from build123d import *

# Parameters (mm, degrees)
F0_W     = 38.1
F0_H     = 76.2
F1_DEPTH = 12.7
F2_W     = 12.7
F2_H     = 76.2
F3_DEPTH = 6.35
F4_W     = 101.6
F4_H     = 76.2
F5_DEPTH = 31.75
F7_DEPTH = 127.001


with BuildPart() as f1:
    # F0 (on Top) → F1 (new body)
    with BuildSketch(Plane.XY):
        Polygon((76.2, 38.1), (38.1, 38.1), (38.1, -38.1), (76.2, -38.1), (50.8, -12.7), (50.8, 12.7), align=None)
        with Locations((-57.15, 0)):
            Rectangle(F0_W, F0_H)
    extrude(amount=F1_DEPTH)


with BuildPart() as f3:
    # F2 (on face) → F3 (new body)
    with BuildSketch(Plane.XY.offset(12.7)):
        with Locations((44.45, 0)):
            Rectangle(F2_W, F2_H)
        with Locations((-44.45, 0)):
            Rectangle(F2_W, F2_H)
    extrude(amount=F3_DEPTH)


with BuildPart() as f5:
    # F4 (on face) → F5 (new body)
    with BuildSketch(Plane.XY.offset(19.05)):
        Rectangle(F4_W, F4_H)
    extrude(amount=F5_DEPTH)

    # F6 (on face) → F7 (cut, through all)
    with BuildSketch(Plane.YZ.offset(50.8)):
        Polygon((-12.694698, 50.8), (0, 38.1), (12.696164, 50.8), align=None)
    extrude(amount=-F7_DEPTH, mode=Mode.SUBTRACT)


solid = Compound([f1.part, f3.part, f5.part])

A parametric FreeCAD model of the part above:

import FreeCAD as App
import Part
import Sketcher
Q = App.Units.Quantity

doc = App.newDocument("Part")
params = doc.addObject("Spreadsheet::Sheet", "Params")
for row, (alias, value) in enumerate([
    ("sketch1_height", "3 in"),
    ("sketch1_height2", "1 in"),
    ("sketch1_width", "1.5 in"),
    ("pad1_length", "0.5 in"),
    ("sketch2_height", "3 in"),
    ("sketch2_width", "0.5 in"),
    ("pad2_length", "0.25 in"),
    ("sketch3_width", "4 in"),
    ("sketch3_height", "3 in"),
    ("pad3_length", "1.25 in"),
    ("sketch4_length", "0.707 in"),
], start=1):
    params.set(f"A{row}", alias)
    params.set(f"B{row}", "=" + value)
    params.setAlias(f"B{row}", alias)

body = doc.addObject("PartDesign::Body", "Body")
body.AllowCompound = True

# Sketch on XY plane
sketch1 = body.newObject("Sketcher::SketchObject", "Sketch")
sketch1.AttachmentSupport = (doc.getObject("XY_Plane"), [""])
sketch1.MapMode = "FlatFace"
sketch1.addGeometry(Part.LineSegment(App.Vector(76.2, 38.1, 0), App.Vector(38.1, 38.1, 0)), False)
sketch1.addGeometry(Part.LineSegment(App.Vector(38.1, 38.1, 0), App.Vector(38.1, -38.1, 0)), False)
sketch1.addGeometry(Part.LineSegment(App.Vector(38.1, -38.1, 0), App.Vector(76.2, -38.1, 0)), False)
sketch1.addGeometry(Part.LineSegment(App.Vector(76.2, -38.1, 0), App.Vector(50.8, -12.7, 0)), False)
sketch1.addGeometry(Part.LineSegment(App.Vector(50.8, -12.7, 0), App.Vector(50.8, 12.7, 0)), False)
sketch1.addGeometry(Part.LineSegment(App.Vector(50.8, 12.7, 0), App.Vector(76.2, 38.1, 0)), False)
sketch1.addGeometry(Part.LineSegment(App.Vector(-76.2, 38.1, 0), App.Vector(-76.2, -38.1, 0)), False)
sketch1.addGeometry(Part.LineSegment(App.Vector(-76.2, -38.1, 0), App.Vector(-38.1, -38.1, 0)), False)
sketch1.addGeometry(Part.LineSegment(App.Vector(-38.1, -38.1, 0), App.Vector(-38.1, 38.1, 0)), False)
sketch1.addGeometry(Part.LineSegment(App.Vector(-38.1, 38.1, 0), App.Vector(-76.2, 38.1, 0)), False)
sketch1.addConstraint(Sketcher.Constraint("Coincident", 0, 2, 1, 1))
sketch1.addConstraint(Sketcher.Constraint("Coincident", 1, 2, 2, 1))
sketch1.addConstraint(Sketcher.Constraint("Coincident", 2, 2, 3, 1))
sketch1.addConstraint(Sketcher.Constraint("Coincident", 3, 2, 4, 1))
sketch1.addConstraint(Sketcher.Constraint("Coincident", 4, 2, 5, 1))
sketch1.addConstraint(Sketcher.Constraint("Coincident", 5, 2, 0, 1))
sketch1.addConstraint(Sketcher.Constraint("Coincident", 6, 2, 7, 1))
sketch1.addConstraint(Sketcher.Constraint("Coincident", 7, 2, 8, 1))
sketch1.addConstraint(Sketcher.Constraint("Coincident", 8, 2, 9, 1))
sketch1.addConstraint(Sketcher.Constraint("Coincident", 9, 2, 6, 1))
sketch1.addConstraint(Sketcher.Constraint("Horizontal", 0))
sketch1.addConstraint(Sketcher.Constraint("Vertical", 1))
sketch1.addConstraint(Sketcher.Constraint("Horizontal", 2))
sketch1.addConstraint(Sketcher.Constraint("Vertical", 4))
sketch1.addConstraint(Sketcher.Constraint("Vertical", 6))
sketch1.addConstraint(Sketcher.Constraint("Horizontal", 7))
sketch1.addConstraint(Sketcher.Constraint("Vertical", 8))
sketch1.addConstraint(Sketcher.Constraint("Horizontal", 9))
sketch1.addConstraint(Sketcher.Constraint("Symmetric", 5, 2, 6, 2, -1, 1))
sketch1.addConstraint(Sketcher.Constraint("Symmetric", 1, 2, 8, 2, -1, 1))
sketch1.addConstraint(Sketcher.Constraint("Symmetric", 2, 2, 6, 2, -2))
sketch1.addConstraint(Sketcher.Constraint("Perpendicular", 3, 5))
sketch1.addConstraint(Sketcher.Constraint("Equal", 3, 5))
sketch1.addConstraint(Sketcher.Constraint("DistanceY", 1, 2, 1, 1, Q("3 in")))
sketch1.addConstraint(Sketcher.Constraint("DistanceY", 4, 1, 4, 2, Q("1 in")))
sketch1.addConstraint(Sketcher.Constraint("DistanceX", 0, 2, 0, 1, Q("1.5 in")))
sketch1.addConstraint(Sketcher.Constraint("DistanceX", -1, 1, 2, 2, Q("3 in")))
sketch1.setExpression("Constraints[23]", "Params.sketch1_height")
sketch1.setExpression("Constraints[24]", "Params.sketch1_height2")
sketch1.setExpression("Constraints[25]", "Params.sketch1_width")
pad1 = body.newObject("PartDesign::Pad", "Pad")
pad1.Profile = sketch1
pad1.setExpression("Length", "Params.pad1_length")
body2 = doc.addObject("PartDesign::Body", "Body001")
body2.AllowCompound = True

# Sketch on XY plane
sketch2 = body2.newObject("Sketcher::SketchObject", "Sketch001")
sketch2.AttachmentSupport = (doc.getObject("XY_Plane001"), [""])
sketch2.MapMode = "FlatFace"
sketch2.AttachmentOffset = App.Placement(App.Vector(0, 0, 0.5 * 25.4), App.Rotation())
sketch2.addGeometry(Part.LineSegment(App.Vector(38.1, 38.1, 0), App.Vector(38.1, -38.1, 0)), False)
sketch2.addGeometry(Part.LineSegment(App.Vector(38.1, -38.1, 0), App.Vector(50.8, -38.1, 0)), False)
sketch2.addGeometry(Part.LineSegment(App.Vector(50.8, -38.1, 0), App.Vector(50.8, 38.1, 0)), False)
sketch2.addGeometry(Part.LineSegment(App.Vector(50.8, 38.1, 0), App.Vector(38.1, 38.1, 0)), False)
sketch2.addGeometry(Part.LineSegment(App.Vector(-50.8, 38.1, 0), App.Vector(-50.8, -38.1, 0)), False)
sketch2.addGeometry(Part.LineSegment(App.Vector(-50.8, -38.1, 0), App.Vector(-38.1, -38.1, 0)), False)
sketch2.addGeometry(Part.LineSegment(App.Vector(-38.1, -38.1, 0), App.Vector(-38.1, 38.1, 0)), False)
sketch2.addGeometry(Part.LineSegment(App.Vector(-38.1, 38.1, 0), App.Vector(-50.8, 38.1, 0)), False)
sketch2.addConstraint(Sketcher.Constraint("Coincident", 0, 2, 1, 1))
sketch2.addConstraint(Sketcher.Constraint("Coincident", 1, 2, 2, 1))
sketch2.addConstraint(Sketcher.Constraint("Coincident", 2, 2, 3, 1))
sketch2.addConstraint(Sketcher.Constraint("Coincident", 3, 2, 0, 1))
sketch2.addConstraint(Sketcher.Constraint("Coincident", 4, 2, 5, 1))
sketch2.addConstraint(Sketcher.Constraint("Coincident", 5, 2, 6, 1))
sketch2.addConstraint(Sketcher.Constraint("Coincident", 6, 2, 7, 1))
sketch2.addConstraint(Sketcher.Constraint("Coincident", 7, 2, 4, 1))
sketch2.addConstraint(Sketcher.Constraint("Vertical", 0))
sketch2.addConstraint(Sketcher.Constraint("Horizontal", 1))
sketch2.addConstraint(Sketcher.Constraint("Vertical", 2))
sketch2.addConstraint(Sketcher.Constraint("Horizontal", 3))
sketch2.addConstraint(Sketcher.Constraint("Vertical", 4))
sketch2.addConstraint(Sketcher.Constraint("Horizontal", 5))
sketch2.addConstraint(Sketcher.Constraint("Vertical", 6))
sketch2.addConstraint(Sketcher.Constraint("Horizontal", 7))
sketch2.addConstraint(Sketcher.Constraint("Symmetric", 2, 2, 4, 2, -1, 1))
sketch2.addConstraint(Sketcher.Constraint("Symmetric", 0, 2, 6, 2, -1, 1))
sketch2.addConstraint(Sketcher.Constraint("Horizontal", 1, 2, 4, 2))
sketch2.addConstraint(Sketcher.Constraint("DistanceY", 0, 2, 0, 1, Q("3 in")))
sketch2.addConstraint(Sketcher.Constraint("DistanceX", 1, 1, 1, 2, Q("0.5 in")))
sketch2.addConstraint(Sketcher.Constraint("DistanceX", -1, 1, 1, 2, Q("2 in")))
sketch2.setExpression("Constraints[19]", "Params.sketch2_height")
sketch2.setExpression("Constraints[20]", "Params.sketch2_width")
pad2 = body2.newObject("PartDesign::Pad", "Pad001")
pad2.Profile = sketch2
pad2.setExpression("Length", "Params.pad2_length")
body3 = doc.addObject("PartDesign::Body", "Body002")

# Sketch on XY plane
sketch3 = body3.newObject("Sketcher::SketchObject", "Sketch002")
sketch3.AttachmentSupport = (doc.getObject("XY_Plane002"), [""])
sketch3.MapMode = "FlatFace"
sketch3.AttachmentOffset = App.Placement(App.Vector(0, 0, 0.75 * 25.4), App.Rotation())
sketch3.addGeometry(Part.LineSegment(App.Vector(-50.8, 38.1, 0), App.Vector(-50.8, -38.1, 0)), False)
sketch3.addGeometry(Part.LineSegment(App.Vector(-50.8, -38.1, 0), App.Vector(50.8, -38.1, 0)), False)
sketch3.addGeometry(Part.LineSegment(App.Vector(50.8, -38.1, 0), App.Vector(50.8, 38.1, 0)), False)
sketch3.addGeometry(Part.LineSegment(App.Vector(50.8, 38.1, 0), App.Vector(-50.8, 38.1, 0)), False)
sketch3.addConstraint(Sketcher.Constraint("Coincident", 0, 2, 1, 1))
sketch3.addConstraint(Sketcher.Constraint("Coincident", 1, 2, 2, 1))
sketch3.addConstraint(Sketcher.Constraint("Coincident", 2, 2, 3, 1))
sketch3.addConstraint(Sketcher.Constraint("Coincident", 3, 2, 0, 1))
sketch3.addConstraint(Sketcher.Constraint("Vertical", 0))
sketch3.addConstraint(Sketcher.Constraint("Horizontal", 1))
sketch3.addConstraint(Sketcher.Constraint("Vertical", 2))
sketch3.addConstraint(Sketcher.Constraint("Horizontal", 3))
sketch3.addConstraint(Sketcher.Constraint("Symmetric", 0, 2, 2, 2, -1, 1))
sketch3.addConstraint(Sketcher.Constraint("DistanceX", 1, 1, 1, 2, Q("4 in")))
sketch3.addConstraint(Sketcher.Constraint("DistanceY", 0, 2, 0, 1, Q("3 in")))
sketch3.setExpression("Constraints[9]", "Params.sketch3_width")
sketch3.setExpression("Constraints[10]", "Params.sketch3_height")
pad3 = body3.newObject("PartDesign::Pad", "Pad002")
pad3.Profile = sketch3
pad3.setExpression("Length", "Params.pad3_length")

# Sketch on YZ plane
sketch4 = body3.newObject("Sketcher::SketchObject", "Sketch003")
sketch4.AttachmentSupport = (doc.getObject("YZ_Plane002"), [""])
sketch4.MapMode = "FlatFace"
sketch4.AttachmentOffset = App.Placement(App.Vector(0, 0, 2 * 25.4), App.Rotation())
sketch4.addGeometry(Part.LineSegment(App.Vector(-12.694698, 50.8, 0), App.Vector(0, 38.1, 0)), False)
sketch4.addGeometry(Part.LineSegment(App.Vector(0, 38.1, 0), App.Vector(12.696164, 50.8, 0)), False)
sketch4.addGeometry(Part.LineSegment(App.Vector(12.696164, 50.8, 0), App.Vector(-12.694698, 50.8, 0)), False)
sketch4.addConstraint(Sketcher.Constraint("Coincident", 0, 2, 1, 1))
sketch4.addConstraint(Sketcher.Constraint("Coincident", 1, 2, 2, 1))
sketch4.addConstraint(Sketcher.Constraint("Coincident", 2, 2, 0, 1))
sketch4.addConstraint(Sketcher.Constraint("Horizontal", 2))
sketch4.addConstraint(Sketcher.Constraint("PointOnObject", 0, 2, -2))
sketch4.addConstraint(Sketcher.Constraint("DistanceY", -1, 1, 1, 2, Q("2 in")))
sketch4.addConstraint(Sketcher.Constraint("DistanceY", -1, 1, 0, 2, Q("1.5 in")))
sketch4.addConstraint(Sketcher.Constraint("Distance", 1, Q("0.707 in")))
sketch4.addConstraint(Sketcher.Constraint("DistanceX", 2, 2, 2, 1, Q("25.390862 mm")))
sketch4.setExpression("Constraints[7]", "Params.sketch4_length")
pocket1 = body3.newObject("PartDesign::Pocket", "Pocket")
pocket1.Profile = sketch4
pocket1.Type = "ThroughAll"

doc.recompute()
